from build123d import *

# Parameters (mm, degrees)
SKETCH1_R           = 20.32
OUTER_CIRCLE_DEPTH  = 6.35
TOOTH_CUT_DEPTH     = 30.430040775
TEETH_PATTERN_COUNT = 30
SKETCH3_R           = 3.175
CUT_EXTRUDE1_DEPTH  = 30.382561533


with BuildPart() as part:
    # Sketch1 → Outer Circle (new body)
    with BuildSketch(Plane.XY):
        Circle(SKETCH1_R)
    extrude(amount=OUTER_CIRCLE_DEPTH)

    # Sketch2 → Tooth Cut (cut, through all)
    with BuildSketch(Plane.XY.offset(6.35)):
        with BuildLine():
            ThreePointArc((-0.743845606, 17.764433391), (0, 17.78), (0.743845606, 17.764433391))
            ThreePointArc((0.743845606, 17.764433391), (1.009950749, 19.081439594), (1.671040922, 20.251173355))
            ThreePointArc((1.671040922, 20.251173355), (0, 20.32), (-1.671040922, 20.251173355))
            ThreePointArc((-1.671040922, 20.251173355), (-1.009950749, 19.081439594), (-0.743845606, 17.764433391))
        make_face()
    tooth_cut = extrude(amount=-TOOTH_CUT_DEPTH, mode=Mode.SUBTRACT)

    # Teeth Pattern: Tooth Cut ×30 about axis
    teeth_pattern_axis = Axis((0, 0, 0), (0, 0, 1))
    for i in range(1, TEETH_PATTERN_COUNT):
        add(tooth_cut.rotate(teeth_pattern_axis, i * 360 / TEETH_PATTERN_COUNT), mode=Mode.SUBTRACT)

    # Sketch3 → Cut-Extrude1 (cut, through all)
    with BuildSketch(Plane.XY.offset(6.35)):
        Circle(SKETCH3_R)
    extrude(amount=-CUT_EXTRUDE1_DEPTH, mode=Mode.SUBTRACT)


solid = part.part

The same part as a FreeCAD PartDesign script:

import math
import FreeCAD as App
import Part
import Sketcher
Q = App.Units.Quantity

doc = App.newDocument("Part")
body = doc.addObject("PartDesign::Body", "Body")

# Sketch on XY plane
sketch1 = body.newObject("Sketcher::SketchObject", "Sketch")
sketch1.AttachmentSupport = (doc.getObject("XY_Plane"), [""])
sketch1.MapMode = "FlatFace"
sketch1.addGeometry(Part.Circle(App.Vector(0, 0, 0), App.Vector(0, 0, 1), 20), False)
sketch1.addConstraint([
    Sketcher.Constraint("Coincident", 0, 3, -1, 1),
    Sketcher.Constraint("Diameter", 0, Q("1.6 in")),
])
pad1 = body.newObject("PartDesign::Pad", "Pad")
pad1.Profile = sketch1
pad1.Length = Q("0.25 in")

# Sketch on XY plane
sketch2 = body.newObject("Sketcher::SketchObject", "Sketch001")
sketch2.AttachmentSupport = (doc.getObject("XY_Plane"), [""])
sketch2.MapMode = "FlatFace"
sketch2.AttachmentOffset = App.Placement(App.Vector(0, 0, 0.25 * 25.4), App.Rotation())
sketch2.addGeometry([
    Part.ArcOfCircle(Part.Circle(App.Vector(0, 0, 0), App.Vector(0, 0, 1), 17.8), math.radians(87.6), math.radians(92.4)),
    Part.ArcOfCircle(Part.Circle(App.Vector(5, 17.6, 0), App.Vector(0, 0, 1), 4.3), math.radians(142), math.radians(178)),
    Part.ArcOfCircle(Part.Circle(App.Vector(0, 0, 0), App.Vector(0, 0, 1), 20.3), math.radians(85.28), math.radians(94.72)),
    Part.ArcOfCircle(Part.Circle(App.Vector(-5, 17.6, 0), App.Vector(0, 0, 1), 4.3), math.radians(2), math.radians(38)),
], False)
sketch2.addConstraint([
    Sketcher.Constraint("Coincident", 0, 1, 1, 2),
    Sketcher.Constraint("Coincident", 1, 1, 2, 1),
    Sketcher.Constraint("Coincident", 2, 2, 3, 2),
    Sketcher.Constraint("Coincident", 3, 1, 0, 2),
    Sketcher.Constraint("Coincident", 0, 3, -1, 1),
    Sketcher.Constraint("Coincident", 2, 3, -1, 1),
    Sketcher.Constraint("Equal", 1, 3),
    Sketcher.Constraint("Symmetric", 1, 3, 3, 3, -2),
    Sketcher.Constraint("Radius", 0, Q("0.7 in")),
    Sketcher.Constraint("Radius", 2, Q("0.8 in")),
    Sketcher.Constraint("Radius", 1, Q("4.282595 mm")),
    Sketcher.Constraint("DistanceX", -1, 1, 1, 3, Q("5.022691 mm")),
    Sketcher.Constraint("DistanceX", -1, 1, 1, 1, Q("1.671041 mm")),
])
pocket1 = body.newObject("PartDesign::Pocket", "Pocket")
pocket1.Profile = sketch2
pocket1.Type = "ThroughAll"
doc.recompute()

polarpattern = body.newObject("PartDesign::PolarPattern", "PolarPattern")
polarpattern.Originals = [pocket1]
polarpattern.Axis = (doc.getObject("Z_Axis"), [""])
polarpattern.Angle = 360
polarpattern.Occurrences = 30
body.Tip = polarpattern

# Sketch on XY plane
sketch3 = body.newObject("Sketcher::SketchObject", "Sketch002")
sketch3.AttachmentSupport = (doc.getObject("XY_Plane"), [""])
sketch3.MapMode = "FlatFace"
sketch3.AttachmentOffset = App.Placement(App.Vector(0, 0, 0.25 * 25.4), App.Rotation())
sketch3.addGeometry(Part.Circle(App.Vector(0, 0, 0), App.Vector(0, 0, 1), 3.2), False)
sketch3.addConstraint([
    Sketcher.Constraint("Coincident", 0, 3, -1, 1),
    Sketcher.Constraint("Diameter", 0, Q("0.25 in")),
])
pocket2 = body.newObject("PartDesign::Pocket", "Pocket001")
pocket2.Profile = sketch3
pocket2.Type = "ThroughAll"

doc.recompute()
